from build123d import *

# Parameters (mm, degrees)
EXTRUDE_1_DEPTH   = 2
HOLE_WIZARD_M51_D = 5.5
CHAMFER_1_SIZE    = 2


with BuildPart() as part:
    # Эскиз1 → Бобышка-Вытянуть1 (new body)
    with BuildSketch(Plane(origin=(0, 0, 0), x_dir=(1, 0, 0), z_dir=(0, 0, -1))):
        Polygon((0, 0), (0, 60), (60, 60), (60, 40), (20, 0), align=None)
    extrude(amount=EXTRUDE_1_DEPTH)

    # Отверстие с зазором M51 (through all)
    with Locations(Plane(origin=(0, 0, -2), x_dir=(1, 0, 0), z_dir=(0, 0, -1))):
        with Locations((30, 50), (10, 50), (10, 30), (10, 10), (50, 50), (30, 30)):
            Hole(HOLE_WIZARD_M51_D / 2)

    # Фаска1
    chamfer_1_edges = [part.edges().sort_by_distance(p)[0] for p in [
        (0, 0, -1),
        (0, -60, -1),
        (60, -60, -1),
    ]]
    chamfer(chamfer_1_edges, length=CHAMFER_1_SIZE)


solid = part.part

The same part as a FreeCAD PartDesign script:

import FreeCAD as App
import Part
import Sketcher

V = App.Vector


def edges_at(feature, points):
    """Names of the edges that pass closest to the given points."""
    edges = feature.Shape.Edges
    near = lambda p: min(range(len(edges)), key=lambda i: edges[i].distToShape(Part.Vertex(*p))[0])
    return sorted({f"Edge{near(p) + 1}" for p in points})


def add_polygon(sketch, points):
    """Adds a closed chain of lines whose ends are joined by coincident constraints."""
    first, n = sketch.GeometryCount, len(points)
    for a, b in zip(points, points[1:] + points[:1]):
        sketch.addGeometry(Part.LineSegment(App.Vector(*a, 0), App.Vector(*b, 0)), False)
    for i in range(n):
        sketch.addConstraint(Sketcher.Constraint("Coincident", first + i, 2, first + (i + 1) % n, 1))

doc = App.newDocument("Part")
body = doc.addObject("PartDesign::Body", "Body")

# Sketch on XY plane
sketch1 = body.newObject("Sketcher::SketchObject", "Sketch")
sketch1.AttachmentSupport = (doc.getObject("XY_Plane"), [""])
sketch1.MapMode = "FlatFace"
add_polygon(sketch1, [(0, -60), (0, 0), (20, 0), (60, -40), (60, -60)])  # lines 0-4
sketch1.addConstraint([
    Sketcher.Constraint("Vertical", 0),
    Sketcher.Constraint("Horizontal", 1),
    Sketcher.Constraint("Vertical", 3),
    Sketcher.Constraint("Horizontal", 4),
    Sketcher.Constraint("Coincident", 0, 2, -1, 1),
    Sketcher.Constraint("Equal", 4, 0),
    Sketcher.Constraint("Equal", 1, 3),
    Sketcher.Constraint("DistanceX", 1, 1, 1, 2, 20.0),
    Sketcher.Constraint("DistanceX", 4, 2, 4, 1, 60.0),
])
pad1 = body.newObject("PartDesign::Pad", "Pad")
pad1.Profile = sketch1
pad1.Length = 2
pad1.Reversed = True

# Sketch on XY plane
sketch2 = body.newObject("Sketcher::SketchObject", "Sketch001")
sketch2.AttachmentSupport = (doc.getObject("XY_Plane"), [""])
sketch2.MapMode = "FlatFace"
sketch2.AttachmentOffset = App.Placement(V(0, 0, -2), App.Rotation())
sketch2.addGeometry([
    Part.Circle(V(30, -50, 0), V(0, 0, 1), 2.8),  # 0
    Part.Circle(V(10, -50, 0), V(0, 0, 1), 2.8),  # 1
    Part.Circle(V(10, -30, 0), V(0, 0, 1), 2.8),  # 2
    Part.Circle(V(10, -10, 0), V(0, 0, 1), 2.8),  # 3
    Part.Circle(V(50, -50, 0), V(0, 0, 1), 2.8),  # 4
    Part.Circle(V(30, -30, 0), V(0, 0, 1), 2.8),  # 5
], False)
sketch2.addConstraint([
    Sketcher.Constraint("Equal", 0, 1),
    Sketcher.Constraint("Equal", 1, 2),
    Sketcher.Constraint("Equal", 2, 3),
    Sketcher.Constraint("Equal", 3, 4),
    Sketcher.Constraint("Equal", 4, 5),
    Sketcher.Constraint("Horizontal", 0, 3, 1, 3),
    Sketcher.Constraint("Horizontal", 1, 3, 4, 3),
    Sketcher.Constraint("Horizontal", 2, 3, 5, 3),
    Sketcher.Constraint("Vertical", 1, 3, 2, 3),
    Sketcher.Constraint("Vertical", 2, 3, 3, 3),
    Sketcher.Constraint("Vertical", 0, 3, 5, 3),
    Sketcher.Constraint("Diameter", 0, 5.5),
    Sketcher.Constraint("DistanceX", -1, 1, 0, 3, 30.0),
    Sketcher.Constraint("DistanceY", 0, 3, -1, 1, 50.0),
    Sketcher.Constraint("DistanceX", -1, 1, 1, 3, 10.0),
    Sketcher.Constraint("DistanceY", 2, 3, -1, 1, 30.0),
    Sketcher.Constraint("DistanceY", 3, 3, -1, 1, 10.0),
    Sketcher.Constraint("DistanceX", -1, 1, 4, 3, 50.0),
])
doc.recompute()
hole = body.newObject("PartDesign::Hole", "Hole")
hole.Profile = sketch2
hole.ThreadType = "None"
hole.Diameter = 5.5
hole.DepthType = "ThroughAll"
hole.Reversed = True
doc.recompute()

chamfer = body.newObject("PartDesign::Chamfer", "Chamfer")
chamfer.Base = (hole, edges_at(hole, [(0, 0, -1), (0, -60, -1), (60, -60, -1)]))
chamfer.Size = 2

doc.recompute()
